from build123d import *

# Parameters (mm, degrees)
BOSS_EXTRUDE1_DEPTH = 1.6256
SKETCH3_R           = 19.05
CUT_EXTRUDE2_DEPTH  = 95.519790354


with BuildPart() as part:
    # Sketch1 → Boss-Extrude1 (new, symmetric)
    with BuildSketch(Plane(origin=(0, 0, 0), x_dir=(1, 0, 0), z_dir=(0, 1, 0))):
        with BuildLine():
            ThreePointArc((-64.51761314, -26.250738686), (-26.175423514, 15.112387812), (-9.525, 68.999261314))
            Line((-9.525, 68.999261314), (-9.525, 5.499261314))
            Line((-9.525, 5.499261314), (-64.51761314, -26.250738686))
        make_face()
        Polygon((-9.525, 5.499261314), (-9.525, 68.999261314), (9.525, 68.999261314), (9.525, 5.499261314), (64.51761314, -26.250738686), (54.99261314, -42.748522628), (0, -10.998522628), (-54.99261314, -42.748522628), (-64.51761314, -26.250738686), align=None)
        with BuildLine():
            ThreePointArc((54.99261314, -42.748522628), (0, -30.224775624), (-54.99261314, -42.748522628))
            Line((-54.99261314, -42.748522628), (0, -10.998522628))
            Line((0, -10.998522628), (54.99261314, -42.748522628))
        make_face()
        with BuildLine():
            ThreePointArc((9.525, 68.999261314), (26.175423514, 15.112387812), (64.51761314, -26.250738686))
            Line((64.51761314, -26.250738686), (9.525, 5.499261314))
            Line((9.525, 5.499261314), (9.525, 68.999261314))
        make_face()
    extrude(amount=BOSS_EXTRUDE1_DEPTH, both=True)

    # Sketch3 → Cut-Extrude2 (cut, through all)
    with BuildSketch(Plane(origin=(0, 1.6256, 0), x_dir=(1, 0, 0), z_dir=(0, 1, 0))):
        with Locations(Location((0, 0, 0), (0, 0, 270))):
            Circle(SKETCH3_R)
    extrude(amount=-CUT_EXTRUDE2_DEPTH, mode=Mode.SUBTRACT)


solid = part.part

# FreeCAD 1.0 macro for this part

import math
import FreeCAD as App
import Part
import Sketcher

V = App.Vector
Q = App.Units.Quantity

doc = App.newDocument("Part")
body = doc.addObject("PartDesign::Body", "Body")

sketch1 = body.newObject("Sketcher::SketchObject", "Sketch")
sketch1.AttachmentSupport = (doc.getObject("XZ_Plane"), [""])
sketch1.MapMode = "FlatFace"
sketch1.addGeometry(Part.ArcOfCircle(Part.Circle(V(-136, -79, 0), V(0, 0, 1), 127), math.radians(4), math.radians(56)), False)
sketch1.addGeometry(Part.LineSegment(V(-65, 26, 0), V(-55, 43, 0)), False)
sketch1.addGeometry(Part.ArcOfCircle(Part.Circle(V(0, 157, 0), V(0, 0, 1), 127), math.radians(-116), math.radians(-64)), False)
sketch1.addGeometry(Part.LineSegment(V(55, 43, 0), V(65, 26, 0)), False)
sketch1.addGeometry(Part.ArcOfCircle(Part.Circle(V(136, -79, 0), V(0, 0, 1), 127), math.radians(124), math.radians(176)), False)
sketch1.addGeometry(Part.LineSegment(V(10, -69, 0), V(-10, -69, 0)), False)
sketch1.addConstraint(Sketcher.Constraint("Coincident", 0, 2, 1, 1))
sketch1.addConstraint(Sketcher.Constraint("Coincident", 1, 2, 2, 1))
sketch1.addConstraint(Sketcher.Constraint("Coincident", 2, 2, 3, 1))
sketch1.addConstraint(Sketcher.Constraint("Coincident", 3, 2, 4, 1))
sketch1.addConstraint(Sketcher.Constraint("Coincident", 4, 2, 5, 1))
sketch1.addConstraint(Sketcher.Constraint("Coincident", 5, 2, 0, 1))
sketch1.addConstraint(Sketcher.Constraint("Horizontal", 5))
sketch1.addConstraint(Sketcher.Constraint("Equal", 0, 2))
sketch1.addConstraint(Sketcher.Constraint("Equal", 2, 4))
sketch1.addConstraint(Sketcher.Constraint("Symmetric", 0, 3, 4, 3, -2))
sketch1.addConstraint(Sketcher.Constraint("Symmetric", 1, 2, 2, 2, -2))
sketch1.addConstraint(Sketcher.Constraint("Horizontal", 0, 2, 3, 2))
sketch1.addConstraint(Sketcher.Constraint("Radius", 0, Q("5 in")))
sketch1.addConstraint(Sketcher.Constraint("Angle", 1, Q("60 deg")))
sketch1.addConstraint(Sketcher.Constraint("DistanceX", 5, 2, 5, 1, Q("0.75 in")))
sketch1.addConstraint(Sketcher.Constraint("Distance", 1, Q("0.75 in")))
sketch1.addConstraint(Sketcher.Constraint("DistanceY", 4, 2, 3, 2, Q("3.75 in")))
sketch1.addConstraint(Sketcher.Constraint("DistanceX", 0, 3, 4, 3, 272.3213))
sketch1.addConstraint(Sketcher.Constraint("DistanceY", -1, 1, 0, 2, 26.250739))
pad1 = body.newObject("PartDesign::Pad", "Pad")
pad1.Profile = sketch1
pad1.Length = Q("0.128 in")
pad1.Midplane = True

sketch2 = body.newObject("Sketcher::SketchObject", "Sketch001")
sketch2.AttachmentSupport = (doc.getObject("XZ_Plane"), [""])
sketch2.MapMode = "FlatFace"
sketch2.AttachmentOffset = App.Placement(V(0, 0, -0.064 * 25.4), App.Rotation())
sketch2.addGeometry(Part.Circle(V(0, 0, 0), V(0, 0, 1), 19), False)
sketch2.addConstraint(Sketcher.Constraint("Coincident", 0, 3, -1, 1))
sketch2.addConstraint(Sketcher.Constraint("Diameter", 0, Q("1.5 in")))
pocket1 = body.newObject("PartDesign::Pocket", "Pocket")
pocket1.Profile = sketch2
pocket1.Type = "ThroughAll"
pocket1.Reversed = True

doc.recompute()
